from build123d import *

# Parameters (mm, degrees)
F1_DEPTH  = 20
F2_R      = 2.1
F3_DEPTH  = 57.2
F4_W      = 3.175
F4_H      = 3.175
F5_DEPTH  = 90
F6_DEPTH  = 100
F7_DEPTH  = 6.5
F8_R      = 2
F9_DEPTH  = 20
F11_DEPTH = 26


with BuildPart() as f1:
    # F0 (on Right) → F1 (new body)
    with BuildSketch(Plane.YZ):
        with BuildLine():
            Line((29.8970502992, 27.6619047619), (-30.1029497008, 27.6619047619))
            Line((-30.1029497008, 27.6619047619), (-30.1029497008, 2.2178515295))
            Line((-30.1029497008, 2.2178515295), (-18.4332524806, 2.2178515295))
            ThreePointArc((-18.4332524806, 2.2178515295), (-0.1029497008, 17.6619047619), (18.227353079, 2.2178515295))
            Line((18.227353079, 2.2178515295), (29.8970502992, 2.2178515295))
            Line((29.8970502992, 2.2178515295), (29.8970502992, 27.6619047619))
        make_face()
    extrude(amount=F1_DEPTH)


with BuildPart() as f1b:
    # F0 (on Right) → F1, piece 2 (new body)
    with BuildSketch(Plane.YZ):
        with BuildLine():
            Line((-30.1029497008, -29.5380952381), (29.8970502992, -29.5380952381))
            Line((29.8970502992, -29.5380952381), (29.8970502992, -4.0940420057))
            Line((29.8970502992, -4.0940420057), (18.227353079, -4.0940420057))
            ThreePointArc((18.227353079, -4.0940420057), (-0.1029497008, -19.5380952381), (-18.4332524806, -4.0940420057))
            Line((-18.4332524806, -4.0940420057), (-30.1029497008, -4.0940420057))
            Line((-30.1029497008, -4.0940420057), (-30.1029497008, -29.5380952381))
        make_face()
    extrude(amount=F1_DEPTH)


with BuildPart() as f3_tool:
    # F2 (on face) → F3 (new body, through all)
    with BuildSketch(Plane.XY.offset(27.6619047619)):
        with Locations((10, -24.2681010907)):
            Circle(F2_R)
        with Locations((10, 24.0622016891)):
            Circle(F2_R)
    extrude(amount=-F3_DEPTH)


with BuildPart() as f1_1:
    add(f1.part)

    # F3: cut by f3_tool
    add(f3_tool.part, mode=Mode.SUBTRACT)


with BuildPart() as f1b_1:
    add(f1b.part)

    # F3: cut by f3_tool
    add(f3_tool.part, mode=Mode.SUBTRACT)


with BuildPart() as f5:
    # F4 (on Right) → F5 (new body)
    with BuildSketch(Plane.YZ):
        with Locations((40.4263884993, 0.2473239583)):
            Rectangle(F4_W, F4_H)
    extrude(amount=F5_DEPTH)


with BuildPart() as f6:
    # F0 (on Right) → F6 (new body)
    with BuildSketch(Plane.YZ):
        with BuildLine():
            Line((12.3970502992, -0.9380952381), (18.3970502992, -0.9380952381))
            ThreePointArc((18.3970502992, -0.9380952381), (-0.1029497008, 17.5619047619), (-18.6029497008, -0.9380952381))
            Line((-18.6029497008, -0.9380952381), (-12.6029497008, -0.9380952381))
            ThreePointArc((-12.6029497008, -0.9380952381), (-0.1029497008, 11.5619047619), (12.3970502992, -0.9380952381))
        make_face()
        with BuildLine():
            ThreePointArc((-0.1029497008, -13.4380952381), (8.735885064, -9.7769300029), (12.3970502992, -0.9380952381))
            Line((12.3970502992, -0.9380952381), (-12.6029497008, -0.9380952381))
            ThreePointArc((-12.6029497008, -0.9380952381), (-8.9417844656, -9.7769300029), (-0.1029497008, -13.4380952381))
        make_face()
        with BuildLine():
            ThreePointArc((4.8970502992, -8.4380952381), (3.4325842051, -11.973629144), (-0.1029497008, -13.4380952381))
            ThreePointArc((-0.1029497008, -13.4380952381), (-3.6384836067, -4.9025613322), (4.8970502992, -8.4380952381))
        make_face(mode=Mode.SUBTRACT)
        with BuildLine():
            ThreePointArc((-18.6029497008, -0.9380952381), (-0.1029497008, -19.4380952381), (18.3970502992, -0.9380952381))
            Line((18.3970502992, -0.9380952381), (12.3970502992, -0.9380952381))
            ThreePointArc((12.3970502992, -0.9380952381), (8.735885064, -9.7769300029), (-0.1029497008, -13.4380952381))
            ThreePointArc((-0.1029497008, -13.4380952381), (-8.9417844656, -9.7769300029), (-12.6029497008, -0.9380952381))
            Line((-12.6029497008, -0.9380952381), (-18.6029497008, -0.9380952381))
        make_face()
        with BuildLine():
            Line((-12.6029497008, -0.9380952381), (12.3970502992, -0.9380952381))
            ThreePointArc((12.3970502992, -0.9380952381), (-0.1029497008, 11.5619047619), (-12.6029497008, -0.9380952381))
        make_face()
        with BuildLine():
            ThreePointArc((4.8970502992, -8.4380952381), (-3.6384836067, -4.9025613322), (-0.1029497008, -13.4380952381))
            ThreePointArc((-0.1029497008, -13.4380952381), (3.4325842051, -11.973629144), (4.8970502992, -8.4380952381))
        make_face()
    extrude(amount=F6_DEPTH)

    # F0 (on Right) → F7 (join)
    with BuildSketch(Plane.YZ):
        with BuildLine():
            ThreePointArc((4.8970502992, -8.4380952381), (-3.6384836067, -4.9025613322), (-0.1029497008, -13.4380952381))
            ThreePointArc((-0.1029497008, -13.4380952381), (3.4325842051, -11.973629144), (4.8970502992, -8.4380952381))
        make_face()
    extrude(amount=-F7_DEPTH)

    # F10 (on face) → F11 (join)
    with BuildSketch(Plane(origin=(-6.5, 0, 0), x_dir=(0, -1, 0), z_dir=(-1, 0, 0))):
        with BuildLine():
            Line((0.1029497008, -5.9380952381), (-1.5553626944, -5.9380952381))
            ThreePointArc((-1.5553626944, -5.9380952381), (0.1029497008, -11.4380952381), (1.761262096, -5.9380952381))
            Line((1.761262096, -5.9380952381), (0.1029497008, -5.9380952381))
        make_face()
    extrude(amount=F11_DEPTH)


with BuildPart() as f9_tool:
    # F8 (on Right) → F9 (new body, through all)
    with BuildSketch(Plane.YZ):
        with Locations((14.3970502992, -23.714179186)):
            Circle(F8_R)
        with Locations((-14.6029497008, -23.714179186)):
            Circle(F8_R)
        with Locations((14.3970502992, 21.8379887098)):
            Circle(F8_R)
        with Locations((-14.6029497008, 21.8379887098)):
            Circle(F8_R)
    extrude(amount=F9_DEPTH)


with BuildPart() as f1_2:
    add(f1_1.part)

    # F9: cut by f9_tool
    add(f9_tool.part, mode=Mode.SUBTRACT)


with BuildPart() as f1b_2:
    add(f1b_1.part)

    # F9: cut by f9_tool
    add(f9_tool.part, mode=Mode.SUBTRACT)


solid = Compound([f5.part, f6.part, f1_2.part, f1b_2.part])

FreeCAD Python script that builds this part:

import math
import FreeCAD as App
import Part
import Sketcher
from FreeCAD import Vector

doc = App.newDocument("Part")
body = doc.addObject("PartDesign::Body", "Body")

sketch1 = doc.addObject("Sketcher::SketchObject", "Sketch")
body.addObject(sketch1)
sketch1.AttachmentSupport = (doc.YZ_Plane, [""])
sketch1.MapMode = "FlatFace"
sketch1.addGeometry(Part.LineSegment(Vector(29.89705, 27.661905, 0), Vector(-30.10295, 27.661905, 0)), False)
sketch1.addGeometry(Part.LineSegment(Vector(-30.10295, 27.661905, 0), Vector(-30.10295, 2.217852, 0)), False)
sketch1.addGeometry(Part.LineSegment(Vector(-30.10295, 2.217852, 0), Vector(-18.433252, 2.217852, 0)), False)
sketch1.addGeometry(Part.ArcOfCircle(Part.Circle(Vector(-0.10295, -0.938095, 0), Vector(0, 0, 1), 18.6), math.radians(9.768898), math.radians(170.231102)), False)
sketch1.addGeometry(Part.LineSegment(Vector(18.227353, 2.217852, 0), Vector(29.89705, 2.217852, 0)), False)
sketch1.addGeometry(Part.LineSegment(Vector(29.89705, 2.217852, 0), Vector(29.89705, 27.661905, 0)), False)
sketch1.addConstraint(Sketcher.Constraint("Coincident", 0, 2, 1, 1))
sketch1.addConstraint(Sketcher.Constraint("Coincident", 1, 2, 2, 1))
sketch1.addConstraint(Sketcher.Constraint("Coincident", 2, 2, 3, 2))
sketch1.addConstraint(Sketcher.Constraint("Coincident", 3, 1, 4, 1))
sketch1.addConstraint(Sketcher.Constraint("Coincident", 4, 2, 5, 1))
sketch1.addConstraint(Sketcher.Constraint("Coincident", 5, 2, 0, 1))
sketch1.addConstraint(Sketcher.Constraint("Horizontal", 0))
sketch1.addConstraint(Sketcher.Constraint("Vertical", 1))
sketch1.addConstraint(Sketcher.Constraint("Horizontal", 2))
sketch1.addConstraint(Sketcher.Constraint("Horizontal", 4))
sketch1.addConstraint(Sketcher.Constraint("Vertical", 5))
sketch1.addConstraint(Sketcher.Constraint("Horizontal", 2, 2, 3, 1))
sketch1.addConstraint(Sketcher.Constraint("Equal", 2, 4))
sketch1.addConstraint(Sketcher.Constraint("Radius", 3, 18.6))
sketch1.addConstraint(Sketcher.Constraint("DistanceX", 0, 2, 0, 1, 60.0))
sketch1.addConstraint(Sketcher.Constraint("DistanceY", 3, 3, 0, 2, 28.6))
sketch1.addConstraint(Sketcher.Constraint("DistanceX", 2, 1, 2, 2, 11.669697))
sketch1.addConstraint(Sketcher.Constraint("DistanceX", 3, 3, -1, 1, 0.10295))
sketch1.addConstraint(Sketcher.Constraint("DistanceY", -1, 1, 1, 2, 2.217852))
pad1 = doc.addObject("PartDesign::Pad", "Pad")
body.addObject(pad1)
pad1.Profile = sketch1
pad1.Length = 20
body2 = doc.addObject("PartDesign::Body", "Body001")

sketch2 = doc.addObject("Sketcher::SketchObject", "Sketch001")
body2.addObject(sketch2)
sketch2.AttachmentSupport = (doc.getObject("YZ_Plane001"), [""])
sketch2.MapMode = "FlatFace"
sketch2.addGeometry(Part.LineSegment(Vector(-30.10295, -29.538095, 0), Vector(29.89705, -29.538095, 0)), False)
sketch2.addGeometry(Part.LineSegment(Vector(29.89705, -29.538095, 0), Vector(29.89705, -4.094042, 0)), False)
sketch2.addGeometry(Part.LineSegment(Vector(29.89705, -4.094042, 0), Vector(18.227353, -4.094042, 0)), False)
sketch2.addGeometry(Part.ArcOfCircle(Part.Circle(Vector(-0.10295, -0.938095, 0), Vector(0, 0, 1), 18.6), math.radians(-170.231102), math.radians(-9.768898)), False)
sketch2.addGeometry(Part.LineSegment(Vector(-18.433252, -4.094042, 0), Vector(-30.10295, -4.094042, 0)), False)
sketch2.addGeometry(Part.LineSegment(Vector(-30.10295, -4.094042, 0), Vector(-30.10295, -29.538095, 0)), False)
sketch2.addConstraint(Sketcher.Constraint("Coincident", 0, 2, 1, 1))
sketch2.addConstraint(Sketcher.Constraint("Coincident", 1, 2, 2, 1))
sketch2.addConstraint(Sketcher.Constraint("Coincident", 2, 2, 3, 2))
sketch2.addConstraint(Sketcher.Constraint("Coincident", 3, 1, 4, 1))
sketch2.addConstraint(Sketcher.Constraint("Coincident", 4, 2, 5, 1))
sketch2.addConstraint(Sketcher.Constraint("Coincident", 5, 2, 0, 1))
sketch2.addConstraint(Sketcher.Constraint("Horizontal", 0))
sketch2.addConstraint(Sketcher.Constraint("Vertical", 1))
sketch2.addConstraint(Sketcher.Constraint("Horizontal", 2))
sketch2.addConstraint(Sketcher.Constraint("Horizontal", 4))
sketch2.addConstraint(Sketcher.Constraint("Vertical", 5))
sketch2.addConstraint(Sketcher.Constraint("Horizontal", 2, 2, 3, 1))
sketch2.addConstraint(Sketcher.Constraint("Equal", 2, 4))
sketch2.addConstraint(Sketcher.Constraint("Radius", 3, 18.6))
sketch2.addConstraint(Sketcher.Constraint("DistanceX", 0, 1, 0, 2, 60.0))
sketch2.addConstraint(Sketcher.Constraint("DistanceY", 0, 2, 3, 3, 28.6))
sketch2.addConstraint(Sketcher.Constraint("DistanceX", 2, 2, 2, 1, 11.669697))
sketch2.addConstraint(Sketcher.Constraint("DistanceX", 3, 3, -1, 1, 0.10295))
sketch2.addConstraint(Sketcher.Constraint("DistanceY", 3, 3, -1, 1, 0.938095))
pad2 = doc.addObject("PartDesign::Pad", "Pad001")
body2.addObject(pad2)
pad2.Profile = sketch2
pad2.Length = 20
body3 = doc.addObject("PartDesign::Body", "Body002")
body3.AllowCompound = True

sketch3 = doc.addObject("Sketcher::SketchObject", "Sketch002")
body3.addObject(sketch3)
sketch3.AttachmentSupport = (doc.getObject("XY_Plane002"), [""])
sketch3.MapMode = "FlatFace"
sketch3.AttachmentOffset = App.Placement(Vector(0, 0, 27.661905), App.Rotation())
sketch3.addGeometry(Part.Circle(Vector(10, -24.268101, 0), Vector(0, 0, 1), 2.1), False)
sketch3.addGeometry(Part.Circle(Vector(10, 24.062202, 0), Vector(0, 0, 1), 2.1), False)
sketch3.addConstraint(Sketcher.Constraint("Equal", 0, 1))
sketch3.addConstraint(Sketcher.Constraint("Vertical", 0, 3, 1, 3))
sketch3.addConstraint(Sketcher.Constraint("Diameter", 0, 4.2))
sketch3.addConstraint(Sketcher.Constraint("DistanceX", -1, 1, 0, 3, 10.0))
sketch3.addConstraint(Sketcher.Constraint("DistanceY", 0, 3, -1, 1, 24.268101))
sketch3.addConstraint(Sketcher.Constraint("DistanceY", -1, 1, 1, 3, 24.062202))
pad3 = doc.addObject("PartDesign::Pad", "Pad002")
body3.addObject(pad3)
pad3.Profile = sketch3
pad3.Length = 57.2
pad3.Reversed = True
doc.recompute()

body4 = doc.addObject("PartDesign::Body", "Body003")
body4.BaseFeature = body3
boolean = doc.addObject("PartDesign::Boolean", "Boolean")
body.addObject(boolean)
boolean.Type = "Cut"
boolean.addObjects([body4])
doc.recompute()

boolean2 = doc.addObject("PartDesign::Boolean", "Boolean001")
body2.addObject(boolean2)
boolean2.Type = "Cut"
boolean2.addObjects([body3])
body5 = doc.addObject("PartDesign::Body", "Body004")

sketch4 = doc.addObject("Sketcher::SketchObject", "Sketch003")
body5.addObject(sketch4)
sketch4.AttachmentSupport = (doc.getObject("YZ_Plane004"), [""])
sketch4.MapMode = "FlatFace"
sketch4.addGeometry(Part.LineSegment(Vector(38.838888, 1.834824, 0), Vector(38.838888, -1.340176, 0)), False)
sketch4.addGeometry(Part.LineSegment(Vector(38.838888, -1.340176, 0), Vector(42.013888, -1.340176, 0)), False)
sketch4.addGeometry(Part.LineSegment(Vector(42.013888, -1.340176, 0), Vector(42.013888, 1.834824, 0)), False)
sketch4.addGeometry(Part.LineSegment(Vector(42.013888, 1.834824, 0), Vector(38.838888, 1.834824, 0)), False)
sketch4.addConstraint(Sketcher.Constraint("Coincident", 0, 2, 1, 1))
sketch4.addConstraint(Sketcher.Constraint("Coincident", 1, 2, 2, 1))
sketch4.addConstraint(Sketcher.Constraint("Coincident", 2, 2, 3, 1))
sketch4.addConstraint(Sketcher.Constraint("Coincident", 3, 2, 0, 1))
sketch4.addConstraint(Sketcher.Constraint("Vertical", 0))
sketch4.addConstraint(Sketcher.Constraint("Horizontal", 1))
sketch4.addConstraint(Sketcher.Constraint("Vertical", 2))
sketch4.addConstraint(Sketcher.Constraint("Horizontal", 3))
sketch4.addConstraint(Sketcher.Constraint("Equal", 3, 0))
sketch4.addConstraint(Sketcher.Constraint("DistanceX", 1, 1, 1, 2, 3.175))
sketch4.addConstraint(Sketcher.Constraint("DistanceX", -1, 1, 0, 2, 38.838888))
sketch4.addConstraint(Sketcher.Constraint("DistanceY", 0, 2, -1, 1, 1.340176))
pad4 = doc.addObject("PartDesign::Pad", "Pad003")
body5.addObject(pad4)
pad4.Profile = sketch4
pad4.Length = 90
body6 = doc.addObject("PartDesign::Body", "Body005")

sketch5 = doc.addObject("Sketcher::SketchObject", "Sketch004")
body6.addObject(sketch5)
sketch5.AttachmentSupport = (doc.getObject("YZ_Plane005"), [""])
sketch5.MapMode = "FlatFace"
sketch5.addGeometry(Part.Circle(Vector(-0.10295, -0.938095, 0), Vector(0, 0, 1), 18.5), False)
sketch5.addConstraint(Sketcher.Constraint("Diameter", 0, 37.0))
sketch5.addConstraint(Sketcher.Constraint("DistanceX", 0, 3, -1, 1, 0.10295))
sketch5.addConstraint(Sketcher.Constraint("DistanceY", 0, 3, -1, 1, 0.938095))
pad5 = doc.addObject("PartDesign::Pad", "Pad004")
body6.addObject(pad5)
pad5.Profile = sketch5
pad5.Length = 100

sketch6 = doc.addObject("Sketcher::SketchObject", "Sketch005")
body6.addObject(sketch6)
sketch6.AttachmentSupport = (doc.getObject("YZ_Plane005"), [""])
sketch6.MapMode = "FlatFace"
sketch6.addGeometry(Part.ArcOfCircle(Part.Circle(Vector(-0.10295, -8.438095, 0), Vector(0, 0, 1), 5), math.radians(0), math.radians(270)), False)
sketch6.addGeometry(Part.ArcOfCircle(Part.Circle(Vector(-0.10295, -8.438095, 0), Vector(0, 0, 1), 5), math.radians(-90), math.radians(0)), False)
sketch6.addConstraint(Sketcher.Constraint("Tangent", 0, 1, 1, 2))
sketch6.addConstraint(Sketcher.Constraint("Coincident", 1, 1, 0, 2))
sketch6.addConstraint(Sketcher.Constraint("Horizontal", 1, 3, 0, 1))
sketch6.addConstraint(Sketcher.Constraint("Vertical", 0, 3, 1, 1))
sketch6.addConstraint(Sketcher.Constraint("Radius", 0, 5.0))
sketch6.addConstraint(Sketcher.Constraint("DistanceX", 0, 3, -1, 1, 0.10295))
sketch6.addConstraint(Sketcher.Constraint("DistanceY", 0, 3, -1, 1, 8.438095))
pad6 = doc.addObject("PartDesign::Pad", "Pad005")
body6.addObject(pad6)
pad6.Profile = sketch6
pad6.Length = 6.5
pad6.Reversed = True

sketch7 = doc.addObject("Sketcher::SketchObject", "Sketch006")
body6.addObject(sketch7)
sketch7.AttachmentSupport = (doc.getObject("YZ_Plane005"), [""])
sketch7.MapMode = "FlatFace"
sketch7.AttachmentOffset = App.Placement(Vector(0, 0, -6.5), App.Rotation())
sketch7.addGeometry(Part.ArcOfCircle(Part.Circle(Vector(-0.10295, -8.438095, 0), Vector(0, 0, 1), 3), math.radians(123.55731), math.radians(416.44269)), False)
sketch7.addGeometry(Part.LineSegment(Vector(-1.761262, -5.938095, 0), Vector(1.555363, -5.938095, 0)), False)
sketch7.addConstraint(Sketcher.Constraint("Coincident", 0, 1, 1, 1))
sketch7.addConstraint(Sketcher.Constraint("Coincident", 1, 2, 0, 2))
sketch7.addConstraint(Sketcher.Constraint("Horizontal", 1))
sketch7.addConstraint(Sketcher.Constraint("Radius", 0, 3.0))
sketch7.addConstraint(Sketcher.Constraint("DistanceY", 0, 3, 0, 1, 2.5))
sketch7.addConstraint(Sketcher.Constraint("DistanceX", 0, 3, -1, 1, 0.10295))
sketch7.addConstraint(Sketcher.Constraint("DistanceY", 0, 3, -1, 1, 8.438095))
pad7 = doc.addObject("PartDesign::Pad", "Pad006")
body6.addObject(pad7)
pad7.Profile = sketch7
pad7.Length = 26
pad7.Reversed = True
body7 = doc.addObject("PartDesign::Body", "Body006")
body7.AllowCompound = True

sketch8 = doc.addObject("Sketcher::SketchObject", "Sketch007")
body7.addObject(sketch8)
sketch8.AttachmentSupport = (doc.getObject("YZ_Plane006"), [""])
sketch8.MapMode = "FlatFace"
sketch8.addGeometry(Part.Circle(Vector(14.39705, -23.714179, 0), Vector(0, 0, 1), 2), False)
sketch8.addGeometry(Part.Circle(Vector(-14.60295, -23.714179, 0), Vector(0, 0, 1), 2), False)
sketch8.addGeometry(Part.Circle(Vector(14.39705, 21.837989, 0), Vector(0, 0, 1), 2), False)
sketch8.addGeometry(Part.Circle(Vector(-14.60295, 21.837989, 0), Vector(0, 0, 1), 2), False)
sketch8.addConstraint(Sketcher.Constraint("Equal", 0, 1))
sketch8.addConstraint(Sketcher.Constraint("Equal", 1, 2))
sketch8.addConstraint(Sketcher.Constraint("Equal", 2, 3))
sketch8.addConstraint(Sketcher.Constraint("Horizontal", 0, 3, 1, 3))
sketch8.addConstraint(Sketcher.Constraint("Horizontal", 2, 3, 3, 3))
sketch8.addConstraint(Sketcher.Constraint("Vertical", 0, 3, 2, 3))
sketch8.addConstraint(Sketcher.Constraint("Vertical", 1, 3, 3, 3))
sketch8.addConstraint(Sketcher.Constraint("Diameter", 0, 4.0))
sketch8.addConstraint(Sketcher.Constraint("DistanceX", 1, 3, 0, 3, 29.0))
sketch8.addConstraint(Sketcher.Constraint("DistanceX", -1, 1, 0, 3, 14.39705))
sketch8.addConstraint(Sketcher.Constraint("DistanceY", 0, 3, -1, 1, 23.714179))
sketch8.addConstraint(Sketcher.Constraint("DistanceY", -1, 1, 2, 3, 21.837989))
pad8 = doc.addObject("PartDesign::Pad", "Pad007")
body7.addObject(pad8)
pad8.Profile = sketch8
pad8.Length = 20
doc.recompute()

body8 = doc.addObject("PartDesign::Body", "Body007")
body8.BaseFeature = body7
boolean3 = doc.addObject("PartDesign::Boolean", "Boolean002")
body.addObject(boolean3)
boolean3.Type = "Cut"
boolean3.addObjects([body8])
doc.recompute()

boolean4 = doc.addObject("PartDesign::Boolean", "Boolean003")
body2.addObject(boolean4)
boolean4.Type = "Cut"
boolean4.addObjects([body7])

doc.recompute()
